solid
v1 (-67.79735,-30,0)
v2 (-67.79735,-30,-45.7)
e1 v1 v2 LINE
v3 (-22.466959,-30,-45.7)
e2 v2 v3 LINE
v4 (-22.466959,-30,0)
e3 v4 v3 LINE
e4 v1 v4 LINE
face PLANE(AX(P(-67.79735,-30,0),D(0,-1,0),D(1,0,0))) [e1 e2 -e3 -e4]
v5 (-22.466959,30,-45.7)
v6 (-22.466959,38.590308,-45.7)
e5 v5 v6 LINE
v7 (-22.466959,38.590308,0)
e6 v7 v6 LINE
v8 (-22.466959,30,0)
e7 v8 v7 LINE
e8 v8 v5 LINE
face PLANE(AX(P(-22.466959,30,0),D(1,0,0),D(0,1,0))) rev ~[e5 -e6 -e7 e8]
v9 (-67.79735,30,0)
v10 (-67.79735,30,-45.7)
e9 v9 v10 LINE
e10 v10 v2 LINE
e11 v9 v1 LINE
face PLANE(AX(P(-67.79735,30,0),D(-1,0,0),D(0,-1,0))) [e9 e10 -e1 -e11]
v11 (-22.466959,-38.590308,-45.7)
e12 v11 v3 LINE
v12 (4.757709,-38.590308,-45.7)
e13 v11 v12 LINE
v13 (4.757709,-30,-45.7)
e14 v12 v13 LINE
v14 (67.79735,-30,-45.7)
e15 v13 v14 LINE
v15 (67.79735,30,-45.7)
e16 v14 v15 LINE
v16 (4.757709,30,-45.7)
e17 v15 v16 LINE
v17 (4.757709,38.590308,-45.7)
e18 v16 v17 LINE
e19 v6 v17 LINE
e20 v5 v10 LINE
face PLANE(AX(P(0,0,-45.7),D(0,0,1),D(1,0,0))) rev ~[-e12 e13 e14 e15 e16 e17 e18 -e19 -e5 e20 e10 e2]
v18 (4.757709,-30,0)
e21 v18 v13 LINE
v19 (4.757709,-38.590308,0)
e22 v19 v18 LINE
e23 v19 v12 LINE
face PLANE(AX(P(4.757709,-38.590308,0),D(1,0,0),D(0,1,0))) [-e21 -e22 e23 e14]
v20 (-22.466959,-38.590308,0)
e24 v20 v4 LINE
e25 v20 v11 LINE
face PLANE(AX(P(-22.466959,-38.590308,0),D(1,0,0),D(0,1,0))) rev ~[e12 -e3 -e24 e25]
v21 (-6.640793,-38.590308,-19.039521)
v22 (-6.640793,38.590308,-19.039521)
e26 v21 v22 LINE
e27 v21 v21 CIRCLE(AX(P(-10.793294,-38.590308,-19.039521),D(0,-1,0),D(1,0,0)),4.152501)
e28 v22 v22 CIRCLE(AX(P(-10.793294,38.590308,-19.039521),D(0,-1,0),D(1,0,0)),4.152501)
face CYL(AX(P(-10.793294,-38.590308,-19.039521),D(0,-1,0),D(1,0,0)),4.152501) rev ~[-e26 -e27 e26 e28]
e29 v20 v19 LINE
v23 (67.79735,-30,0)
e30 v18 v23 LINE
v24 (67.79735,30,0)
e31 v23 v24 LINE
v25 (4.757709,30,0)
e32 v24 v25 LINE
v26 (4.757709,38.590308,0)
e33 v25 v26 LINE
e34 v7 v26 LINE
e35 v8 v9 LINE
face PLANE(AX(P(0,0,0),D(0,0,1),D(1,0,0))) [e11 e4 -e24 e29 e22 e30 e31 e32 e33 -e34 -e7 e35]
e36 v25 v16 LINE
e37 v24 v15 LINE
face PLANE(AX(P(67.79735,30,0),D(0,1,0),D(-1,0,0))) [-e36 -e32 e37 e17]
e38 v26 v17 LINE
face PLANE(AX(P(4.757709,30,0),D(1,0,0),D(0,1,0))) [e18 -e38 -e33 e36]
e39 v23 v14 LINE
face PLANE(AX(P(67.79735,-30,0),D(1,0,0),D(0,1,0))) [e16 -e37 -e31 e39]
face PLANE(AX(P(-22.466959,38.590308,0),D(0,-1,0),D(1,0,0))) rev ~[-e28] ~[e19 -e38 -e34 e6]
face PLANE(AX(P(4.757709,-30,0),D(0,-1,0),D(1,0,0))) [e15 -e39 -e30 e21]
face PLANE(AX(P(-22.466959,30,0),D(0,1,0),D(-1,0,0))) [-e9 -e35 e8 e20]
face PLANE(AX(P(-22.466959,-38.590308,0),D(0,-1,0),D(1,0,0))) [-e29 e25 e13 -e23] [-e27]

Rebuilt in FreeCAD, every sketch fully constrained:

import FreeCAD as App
import Part
import Sketcher


def add_polygon(sketch, points):
    """Adds a closed chain of lines whose ends are joined by coincident constraints."""
    first, n = sketch.GeometryCount, len(points)
    for a, b in zip(points, points[1:] + points[:1]):
        sketch.addGeometry(Part.LineSegment(App.Vector(*a, 0), App.Vector(*b, 0)), False)
    for i in range(n):
        sketch.addConstraint(Sketcher.Constraint("Coincident", first + i, 2, first + (i + 1) % n, 1))

doc = App.newDocument("Part")
body = doc.addObject("PartDesign::Body", "Body")

# Sketch on XY plane
sketch1 = body.newObject("Sketcher::SketchObject", "Sketch")
sketch1.AttachmentSupport = (doc.getObject("XY_Plane"), [""])
sketch1.MapMode = "FlatFace"
add_polygon(sketch1, [(67.79735, -30), (67.79735, 30), (4.757709, 30), (4.757709, 38.590308), (-22.466959, 38.590308), (-22.466959, 30), (-67.79735, 30), (-67.79735, -30), (-22.466959, -30), (-22.466959, -38.590308), (4.757709, -38.590308), (4.757709, -30)])  # lines 0-11
sketch1.addConstraint([
    Sketcher.Constraint("Vertical", 0),
    Sketcher.Constraint("Horizontal", 1),
    Sketcher.Constraint("Vertical", 2),
    Sketcher.Constraint("Horizontal", 3),
    Sketcher.Constraint("Vertical", 4),
    Sketcher.Constraint("Horizontal", 5),
    Sketcher.Constraint("Vertical", 6),
    Sketcher.Constraint("Horizontal", 7),
    Sketcher.Constraint("Vertical", 8),
    Sketcher.Constraint("Horizontal", 9),
    Sketcher.Constraint("Vertical", 10),
    Sketcher.Constraint("Horizontal", 11),
    Sketcher.Constraint("Symmetric", 0, 2, 6, 2, -1, 1),
    Sketcher.Constraint("Symmetric", 4, 2, 7, 2, -1),
    Sketcher.Constraint("Symmetric", 2, 2, 9, 2, -1),
    Sketcher.Constraint("Horizontal", 7, 2, 10, 2),
    Sketcher.Constraint("DistanceY", 0, 1, 0, 2, 60.0),
    Sketcher.Constraint("DistanceX", 1, 2, 1, 1, 63.039641),
    Sketcher.Constraint("DistanceX", 3, 2, 3, 1, 27.224668),
    Sketcher.Constraint("DistanceX", 5, 2, 5, 1, 45.330391),
    Sketcher.Constraint("DistanceY", 2, 1, 2, 2, 8.590308),
])
pad1 = body.newObject("PartDesign::Pad", "Pad")
pad1.Profile = sketch1
pad1.Length = 45.7
pad1.Reversed = True

# Sketch on XZ plane
sketch2 = body.newObject("Sketcher::SketchObject", "Sketch001")
sketch2.AttachmentSupport = (doc.getObject("XZ_Plane"), [""])
sketch2.MapMode = "FlatFace"
sketch2.AttachmentOffset = App.Placement(App.Vector(0, 0, 38.590308), App.Rotation())
sketch2.addGeometry(Part.Circle(App.Vector(-10.793294, -19.039521, 0), App.Vector(0, 0, 1), 4.152501), False)
sketch2.addConstraint([
    Sketcher.Constraint("Diameter", 0, 8.305002),
    Sketcher.Constraint("DistanceY", 0, 3, -1, 1, 19.039521),
    Sketcher.Constraint("DistanceX", 0, 3, -1, 1, 10.793294),
])
pocket1 = body.newObject("PartDesign::Pocket", "Pocket")
pocket1.Profile = sketch2
pocket1.Type = "ThroughAll"

doc.recompute()
